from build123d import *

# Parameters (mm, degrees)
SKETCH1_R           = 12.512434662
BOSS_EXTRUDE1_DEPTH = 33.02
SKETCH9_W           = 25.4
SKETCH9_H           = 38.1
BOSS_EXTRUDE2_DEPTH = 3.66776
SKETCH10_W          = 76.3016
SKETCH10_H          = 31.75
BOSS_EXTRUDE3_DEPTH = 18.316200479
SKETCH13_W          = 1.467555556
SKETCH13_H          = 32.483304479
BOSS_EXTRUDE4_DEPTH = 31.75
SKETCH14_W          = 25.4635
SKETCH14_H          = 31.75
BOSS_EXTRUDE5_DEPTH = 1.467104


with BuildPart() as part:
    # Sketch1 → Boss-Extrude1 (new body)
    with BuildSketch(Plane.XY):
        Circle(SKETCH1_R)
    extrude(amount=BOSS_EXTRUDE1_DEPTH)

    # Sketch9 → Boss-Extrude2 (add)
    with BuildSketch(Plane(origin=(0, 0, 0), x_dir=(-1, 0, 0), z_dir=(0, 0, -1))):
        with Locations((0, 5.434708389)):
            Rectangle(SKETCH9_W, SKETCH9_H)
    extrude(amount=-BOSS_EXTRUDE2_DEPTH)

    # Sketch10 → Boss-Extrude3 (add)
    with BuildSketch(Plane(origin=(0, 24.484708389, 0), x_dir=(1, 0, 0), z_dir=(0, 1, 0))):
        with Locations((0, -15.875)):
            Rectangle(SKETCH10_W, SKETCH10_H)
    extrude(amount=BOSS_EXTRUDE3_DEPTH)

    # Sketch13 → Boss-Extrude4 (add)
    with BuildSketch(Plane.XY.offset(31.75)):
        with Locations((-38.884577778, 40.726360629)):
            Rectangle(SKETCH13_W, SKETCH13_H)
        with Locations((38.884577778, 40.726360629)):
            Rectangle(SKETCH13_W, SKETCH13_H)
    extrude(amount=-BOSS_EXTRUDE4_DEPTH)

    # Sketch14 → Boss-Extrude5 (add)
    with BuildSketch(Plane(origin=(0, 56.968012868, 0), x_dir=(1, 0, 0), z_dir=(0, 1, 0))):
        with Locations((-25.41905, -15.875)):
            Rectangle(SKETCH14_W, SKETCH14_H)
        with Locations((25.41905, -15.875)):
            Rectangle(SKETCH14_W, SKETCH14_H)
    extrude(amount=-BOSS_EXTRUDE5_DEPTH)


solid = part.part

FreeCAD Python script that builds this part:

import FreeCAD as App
import Part
import Sketcher
Q = App.Units.Quantity


def add_polygon(sketch, points):
    """Adds a closed chain of lines whose ends are joined by coincident constraints."""
    first, n = sketch.GeometryCount, len(points)
    for a, b in zip(points, points[1:] + points[:1]):
        sketch.addGeometry(Part.LineSegment(App.Vector(*a, 0), App.Vector(*b, 0)), False)
    for i in range(n):
        sketch.addConstraint(Sketcher.Constraint("Coincident", first + i, 2, first + (i + 1) % n, 1))

doc = App.newDocument("Part")
body = doc.addObject("PartDesign::Body", "Body")

# Sketch on XY plane
sketch1 = body.newObject("Sketcher::SketchObject", "Sketch")
sketch1.AttachmentSupport = (doc.getObject("XY_Plane"), [""])
sketch1.MapMode = "FlatFace"
sketch1.addGeometry(Part.Circle(App.Vector(0, 0, 0), App.Vector(0, 0, 1), 12.512435), False)
sketch1.addConstraint([
    Sketcher.Constraint("Coincident", 0, 3, -1, 1),
    Sketcher.Constraint("Diameter", 0, Q("25.024869 mm")),
])
pad1 = body.newObject("PartDesign::Pad", "Pad")
pad1.Profile = sketch1
pad1.Length = Q("1.3 in")

# Sketch on XY plane
sketch2 = body.newObject("Sketcher::SketchObject", "Sketch001")
sketch2.AttachmentSupport = (doc.getObject("XY_Plane"), [""])
sketch2.MapMode = "FlatFace"
add_polygon(sketch2, [(12.7, 24.484708), (12.7, -13.615292), (-12.7, -13.615292), (-12.7, 24.484708)])  # lines 0-3
sketch2.addConstraint([
    Sketcher.Constraint("Vertical", 0),
    Sketcher.Constraint("Horizontal", 1),
    Sketcher.Constraint("Vertical", 2),
    Sketcher.Constraint("Horizontal", 3),
    Sketcher.Constraint("DistanceX", 1, 2, 1, 1, Q("1 in")),
    Sketcher.Constraint("DistanceY", 0, 2, 0, 1, Q("1.5 in")),
    Sketcher.Constraint("DistanceX", -1, 1, 0, 2, Q("0.5 in")),
    Sketcher.Constraint("DistanceY", 0, 2, -1, 1, Q("13.615292 mm")),
])
pad2 = body.newObject("PartDesign::Pad", "Pad001")
pad2.Profile = sketch2
pad2.Length = Q("0.1444 in")

# Sketch on XZ plane
sketch3 = body.newObject("Sketcher::SketchObject", "Sketch002")
sketch3.AttachmentSupport = (doc.getObject("XZ_Plane"), [""])
sketch3.MapMode = "FlatFace"
sketch3.AttachmentOffset = App.Placement(App.Vector(0, 0, -24.484708), App.Rotation())
add_polygon(sketch3, [(-38.1508, 0), (-38.1508, 31.75), (38.1508, 31.75), (38.1508, 0)])  # lines 0-3
sketch3.addConstraint([
    Sketcher.Constraint("Vertical", 0),
    Sketcher.Constraint("Horizontal", 1),
    Sketcher.Constraint("Vertical", 2),
    Sketcher.Constraint("Horizontal", 3),
    Sketcher.Constraint("Symmetric", 2, 2, 3, 2, -1, 1),
    Sketcher.Constraint("DistanceY", 0, 1, 0, 2, Q("1.25 in")),
    Sketcher.Constraint("DistanceX", 1, 1, 1, 2, Q("3.004 in")),
])
pad3 = body.newObject("PartDesign::Pad", "Pad002")
pad3.Profile = sketch3
pad3.Length = 18.3162
pad3.Reversed = True

# Sketch on XY plane
sketch4 = body.newObject("Sketcher::SketchObject", "Sketch003")
sketch4.AttachmentSupport = (doc.getObject("XY_Plane"), [""])
sketch4.MapMode = "FlatFace"
sketch4.AttachmentOffset = App.Placement(App.Vector(0, 0, 1.25 * 25.4), App.Rotation())
add_polygon(sketch4, [(-39.618356, 56.968013), (-39.618356, 24.484708), (-38.1508, 24.484708), (-38.1508, 56.968013)])  # lines 0-3
add_polygon(sketch4, [(38.1508, 56.968013), (38.1508, 24.484708), (39.618356, 24.484708), (39.618356, 56.968013)])  # lines 4-7
sketch4.addConstraint([
    Sketcher.Constraint("Vertical", 0),
    Sketcher.Constraint("Horizontal", 1),
    Sketcher.Constraint("Vertical", 2),
    Sketcher.Constraint("Horizontal", 3),
    Sketcher.Constraint("Vertical", 4),
    Sketcher.Constraint("Horizontal", 5),
    Sketcher.Constraint("Vertical", 6),
    Sketcher.Constraint("Horizontal", 7),
    Sketcher.Constraint("Symmetric", 1, 2, 4, 2, -2),
    Sketcher.Constraint("Symmetric", 3, 2, 6, 2, -2),
    Sketcher.Constraint("DistanceX", 1, 2, -1, 1, Q("1.502 in")),
    Sketcher.Constraint("DistanceX", 1, 1, 1, 2, Q("1.467556 mm")),
    Sketcher.Constraint("DistanceY", 0, 2, 0, 1, Q("32.483304 mm")),
    Sketcher.Constraint("DistanceY", -1, 1, 0, 2, Q("24.484708 mm")),
])
pad4 = body.newObject("PartDesign::Pad", "Pad003")
pad4.Profile = sketch4
pad4.Length = Q("1.25 in")
pad4.Reversed = True

# Sketch on XZ plane
sketch5 = body.newObject("Sketcher::SketchObject", "Sketch004")
sketch5.AttachmentSupport = (doc.getObject("XZ_Plane"), [""])
sketch5.MapMode = "FlatFace"
sketch5.AttachmentOffset = App.Placement(App.Vector(0, 0, -56.968013), App.Rotation())
add_polygon(sketch5, [(-38.1508, 0), (-38.1508, 31.75), (-12.6873, 31.75), (-12.6873, 0)])  # lines 0-3
add_polygon(sketch5, [(12.6873, 0), (12.6873, 31.75), (38.1508, 31.75), (38.1508, 0)])  # lines 4-7
sketch5.addConstraint([
    Sketcher.Constraint("Vertical", 0),
    Sketcher.Constraint("Horizontal", 1),
    Sketcher.Constraint("Vertical", 2),
    Sketcher.Constraint("Horizontal", 3),
    Sketcher.Constraint("Vertical", 4),
    Sketcher.Constraint("Horizontal", 5),
    Sketcher.Constraint("Vertical", 6),
    Sketcher.Constraint("Horizontal", 7),
    Sketcher.Constraint("Symmetric", 3, 2, 6, 2, -1, 1),
    Sketcher.Constraint("Symmetric", 1, 2, 4, 2, -2),
    Sketcher.Constraint("PointOnObject", 2, 2, -1),
    Sketcher.Constraint("DistanceY", 0, 1, 0, 2, Q("1.25 in")),
    Sketcher.Constraint("DistanceX", 1, 1, 1, 2, Q("1.0025 in")),
    Sketcher.Constraint("DistanceX", 0, 2, -1, 1, Q("1.502 in")),
])
pad5 = body.newObject("PartDesign::Pad", "Pad004")
pad5.Profile = sketch5
pad5.Length = 1.467104

doc.recompute()
